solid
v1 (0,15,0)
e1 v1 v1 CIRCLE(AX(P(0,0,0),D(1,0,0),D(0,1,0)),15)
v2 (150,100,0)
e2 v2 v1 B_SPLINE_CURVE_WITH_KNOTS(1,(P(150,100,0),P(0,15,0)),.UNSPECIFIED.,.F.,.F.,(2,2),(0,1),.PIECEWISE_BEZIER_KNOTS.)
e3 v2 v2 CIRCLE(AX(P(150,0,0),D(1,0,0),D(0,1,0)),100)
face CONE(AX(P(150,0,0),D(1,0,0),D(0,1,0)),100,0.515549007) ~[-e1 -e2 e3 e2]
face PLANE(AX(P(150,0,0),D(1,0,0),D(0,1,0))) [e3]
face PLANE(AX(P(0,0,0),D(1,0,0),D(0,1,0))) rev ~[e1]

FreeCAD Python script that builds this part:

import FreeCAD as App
import Part
import Sketcher

V = App.Vector
Q = App.Units.Quantity

doc = App.newDocument("Part")
body = doc.addObject("PartDesign::Body", "Body")

sketch1 = body.newObject("Sketcher::SketchObject", "Sketch")
sketch1.AttachmentSupport = (doc.getObject("YZ_Plane"), [""])
sketch1.MapMode = "FlatFace"
sketch1.AttachmentOffset = App.Placement(V(0, 0, 150), App.Rotation())
sketch1.addGeometry(Part.Circle(V(0, 0, 0), V(0, 0, 1), 100), False)
sketch1.addConstraint([
    Sketcher.Constraint("Coincident", 0, 3, -1, 1),
    Sketcher.Constraint("Diameter", 0, Q("200 mm")),
])

sketch2 = body.newObject("Sketcher::SketchObject", "Sketch001")
sketch2.AttachmentSupport = (doc.getObject("YZ_Plane"), [""])
sketch2.MapMode = "FlatFace"
sketch2.addGeometry(Part.Circle(V(0, 0, 0), V(0, 0, 1), 15), False)
sketch2.addConstraint([
    Sketcher.Constraint("Coincident", 0, 3, -1, 1),
    Sketcher.Constraint("Diameter", 0, Q("30 mm")),
])

additiveloft = body.newObject("PartDesign::AdditiveLoft", "AdditiveLoft")
additiveloft.Profile = sketch1
additiveloft.Sections = [sketch2]

doc.recompute()
